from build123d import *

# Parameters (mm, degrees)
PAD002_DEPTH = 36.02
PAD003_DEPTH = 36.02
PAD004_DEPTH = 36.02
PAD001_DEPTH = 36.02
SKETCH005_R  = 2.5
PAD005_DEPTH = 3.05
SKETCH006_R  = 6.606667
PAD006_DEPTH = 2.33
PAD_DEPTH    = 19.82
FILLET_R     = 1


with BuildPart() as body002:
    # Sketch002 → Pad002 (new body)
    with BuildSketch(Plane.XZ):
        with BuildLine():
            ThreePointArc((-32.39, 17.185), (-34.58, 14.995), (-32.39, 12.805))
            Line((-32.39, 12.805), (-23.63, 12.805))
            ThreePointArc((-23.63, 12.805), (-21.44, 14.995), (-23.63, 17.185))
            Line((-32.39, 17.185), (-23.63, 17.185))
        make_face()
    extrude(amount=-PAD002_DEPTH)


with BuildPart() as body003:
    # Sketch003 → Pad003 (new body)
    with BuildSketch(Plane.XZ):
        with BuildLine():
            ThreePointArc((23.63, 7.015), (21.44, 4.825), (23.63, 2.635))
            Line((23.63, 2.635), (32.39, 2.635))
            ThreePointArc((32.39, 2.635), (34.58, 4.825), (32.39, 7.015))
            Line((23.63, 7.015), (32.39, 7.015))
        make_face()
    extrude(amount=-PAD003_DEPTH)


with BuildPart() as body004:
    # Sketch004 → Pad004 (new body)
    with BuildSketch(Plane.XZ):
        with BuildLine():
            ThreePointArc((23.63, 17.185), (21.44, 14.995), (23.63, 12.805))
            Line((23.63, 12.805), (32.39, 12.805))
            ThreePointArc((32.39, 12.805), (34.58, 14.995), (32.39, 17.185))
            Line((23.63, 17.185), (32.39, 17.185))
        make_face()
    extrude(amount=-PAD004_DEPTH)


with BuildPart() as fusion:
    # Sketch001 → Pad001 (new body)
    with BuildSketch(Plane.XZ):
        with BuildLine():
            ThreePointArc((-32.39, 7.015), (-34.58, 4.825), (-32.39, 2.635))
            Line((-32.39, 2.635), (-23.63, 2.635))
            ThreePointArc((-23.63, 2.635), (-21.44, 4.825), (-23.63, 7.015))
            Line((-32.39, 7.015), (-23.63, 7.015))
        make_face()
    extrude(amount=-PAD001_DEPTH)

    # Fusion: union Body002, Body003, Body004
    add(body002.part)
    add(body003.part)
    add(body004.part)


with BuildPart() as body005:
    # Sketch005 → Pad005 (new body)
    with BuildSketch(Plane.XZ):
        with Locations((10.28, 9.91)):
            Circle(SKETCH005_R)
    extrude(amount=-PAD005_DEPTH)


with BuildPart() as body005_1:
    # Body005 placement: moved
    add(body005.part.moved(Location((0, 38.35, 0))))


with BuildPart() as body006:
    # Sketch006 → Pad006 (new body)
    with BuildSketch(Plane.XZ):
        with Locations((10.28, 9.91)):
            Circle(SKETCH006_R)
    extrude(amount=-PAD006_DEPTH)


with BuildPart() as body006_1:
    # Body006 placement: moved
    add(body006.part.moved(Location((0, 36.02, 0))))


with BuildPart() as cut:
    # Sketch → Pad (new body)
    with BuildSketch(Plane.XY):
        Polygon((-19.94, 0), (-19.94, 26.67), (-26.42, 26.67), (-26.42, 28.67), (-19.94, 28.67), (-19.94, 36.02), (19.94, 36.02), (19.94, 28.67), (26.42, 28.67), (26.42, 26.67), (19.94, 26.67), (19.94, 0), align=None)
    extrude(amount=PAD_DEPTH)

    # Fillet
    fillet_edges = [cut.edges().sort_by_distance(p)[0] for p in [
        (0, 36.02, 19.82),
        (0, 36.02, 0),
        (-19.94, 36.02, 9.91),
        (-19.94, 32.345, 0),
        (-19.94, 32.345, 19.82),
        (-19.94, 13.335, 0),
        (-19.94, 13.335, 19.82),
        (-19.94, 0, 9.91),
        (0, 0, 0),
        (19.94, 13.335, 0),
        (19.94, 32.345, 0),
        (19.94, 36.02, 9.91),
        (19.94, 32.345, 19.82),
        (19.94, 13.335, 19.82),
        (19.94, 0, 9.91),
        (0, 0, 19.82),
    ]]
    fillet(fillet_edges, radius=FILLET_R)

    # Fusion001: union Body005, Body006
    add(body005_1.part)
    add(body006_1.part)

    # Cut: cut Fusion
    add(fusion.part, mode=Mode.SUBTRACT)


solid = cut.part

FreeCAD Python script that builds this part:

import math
import FreeCAD as App
import Part
import Sketcher
from FreeCAD import Vector


def edges_at(feature, points):
    """Names of the edges that pass closest to the given points."""
    edges = feature.Shape.Edges
    near = lambda p: min(range(len(edges)), key=lambda i: edges[i].distToShape(Part.Vertex(*p))[0])
    return sorted({f"Edge{near(p) + 1}" for p in points})

doc = App.newDocument("Part")
body = doc.addObject("PartDesign::Body", "Body")

# Sketch on XZ plane
sketch1 = body.newObject("Sketcher::SketchObject", "Sketch")
sketch1.AttachmentSupport = (doc.getObject("XZ_Plane"), [""])
sketch1.MapMode = "FlatFace"
sketch1.addGeometry(Part.ArcOfCircle(Part.Circle(Vector(-32.4, 15, 0), Vector(0, 0, 1), 2.2), math.radians(90), math.radians(270)), False)
sketch1.addGeometry(Part.LineSegment(Vector(-32.4, 12.8, 0), Vector(-23.6, 12.8, 0)), False)
sketch1.addGeometry(Part.ArcOfCircle(Part.Circle(Vector(-23.6, 15, 0), Vector(0, 0, 1), 2.2), math.radians(-90), math.radians(90)), False)
sketch1.addGeometry(Part.LineSegment(Vector(-23.6, 17.2, 0), Vector(-32.4, 17.2, 0)), False)
sketch1.addConstraint(Sketcher.Constraint("Tangent", 0, 2, 1, 1))
sketch1.addConstraint(Sketcher.Constraint("Tangent", 1, 2, 2, 1))
sketch1.addConstraint(Sketcher.Constraint("Tangent", 2, 2, 3, 1))
sketch1.addConstraint(Sketcher.Constraint("Tangent", 3, 2, 0, 1))
sketch1.addConstraint(Sketcher.Constraint("Horizontal", 1))
sketch1.addConstraint(Sketcher.Constraint("Horizontal", 3))
sketch1.addConstraint(Sketcher.Constraint("Radius", 0, 2.19))
sketch1.addConstraint(Sketcher.Constraint("DistanceX", 1, 1, 1, 2, 8.76))
sketch1.addConstraint(Sketcher.Constraint("DistanceX", 0, 3, -1, 1, 32.39))
sketch1.addConstraint(Sketcher.Constraint("DistanceY", -1, 1, 0, 3, 14.995))
pad1 = body.newObject("PartDesign::Pad", "Pad")
pad1.Profile = sketch1
pad1.Length = 36.02
pad1.Reversed = True
body2 = doc.addObject("PartDesign::Body", "Body001")

# Sketch on XZ plane
sketch2 = body2.newObject("Sketcher::SketchObject", "Sketch001")
sketch2.AttachmentSupport = (doc.getObject("XZ_Plane001"), [""])
sketch2.MapMode = "FlatFace"
sketch2.addGeometry(Part.ArcOfCircle(Part.Circle(Vector(23.6, 4.8, 0), Vector(0, 0, 1), 2.2), math.radians(90), math.radians(270)), False)
sketch2.addGeometry(Part.LineSegment(Vector(23.6, 2.6, 0), Vector(32.4, 2.6, 0)), False)
sketch2.addGeometry(Part.ArcOfCircle(Part.Circle(Vector(32.4, 4.8, 0), Vector(0, 0, 1), 2.2), math.radians(-90), math.radians(90)), False)
sketch2.addGeometry(Part.LineSegment(Vector(32.4, 7, 0), Vector(23.6, 7, 0)), False)
sketch2.addConstraint(Sketcher.Constraint("Tangent", 0, 2, 1, 1))
sketch2.addConstraint(Sketcher.Constraint("Tangent", 1, 2, 2, 1))
sketch2.addConstraint(Sketcher.Constraint("Tangent", 2, 2, 3, 1))
sketch2.addConstraint(Sketcher.Constraint("Tangent", 3, 2, 0, 1))
sketch2.addConstraint(Sketcher.Constraint("Horizontal", 1))
sketch2.addConstraint(Sketcher.Constraint("Horizontal", 3))
sketch2.addConstraint(Sketcher.Constraint("Radius", 0, 2.19))
sketch2.addConstraint(Sketcher.Constraint("DistanceX", 1, 1, 1, 2, 8.76))
sketch2.addConstraint(Sketcher.Constraint("DistanceX", -1, 1, 0, 3, 23.63))
sketch2.addConstraint(Sketcher.Constraint("DistanceY", -1, 1, 0, 3, 4.825))
pad2 = body2.newObject("PartDesign::Pad", "Pad001")
pad2.Profile = sketch2
pad2.Length = 36.02
pad2.Reversed = True
body3 = doc.addObject("PartDesign::Body", "Body002")

# Sketch on XZ plane
sketch3 = body3.newObject("Sketcher::SketchObject", "Sketch002")
sketch3.AttachmentSupport = (doc.getObject("XZ_Plane002"), [""])
sketch3.MapMode = "FlatFace"
sketch3.addGeometry(Part.ArcOfCircle(Part.Circle(Vector(23.6, 15, 0), Vector(0, 0, 1), 2.2), math.radians(90), math.radians(270)), False)
sketch3.addGeometry(Part.LineSegment(Vector(23.6, 12.8, 0), Vector(32.4, 12.8, 0)), False)
sketch3.addGeometry(Part.ArcOfCircle(Part.Circle(Vector(32.4, 15, 0), Vector(0, 0, 1), 2.2), math.radians(-90), math.radians(90)), False)
sketch3.addGeometry(Part.LineSegment(Vector(32.4, 17.2, 0), Vector(23.6, 17.2, 0)), False)
sketch3.addConstraint(Sketcher.Constraint("Tangent", 0, 2, 1, 1))
sketch3.addConstraint(Sketcher.Constraint("Tangent", 1, 2, 2, 1))
sketch3.addConstraint(Sketcher.Constraint("Tangent", 2, 2, 3, 1))
sketch3.addConstraint(Sketcher.Constraint("Tangent", 3, 2, 0, 1))
sketch3.addConstraint(Sketcher.Constraint("Horizontal", 1))
sketch3.addConstraint(Sketcher.Constraint("Horizontal", 3))
sketch3.addConstraint(Sketcher.Constraint("Radius", 0, 2.19))
sketch3.addConstraint(Sketcher.Constraint("DistanceX", 1, 1, 1, 2, 8.76))
sketch3.addConstraint(Sketcher.Constraint("DistanceX", -1, 1, 0, 3, 23.63))
sketch3.addConstraint(Sketcher.Constraint("DistanceY", -1, 1, 0, 3, 14.995))
pad3 = body3.newObject("PartDesign::Pad", "Pad002")
pad3.Profile = sketch3
pad3.Length = 36.02
pad3.Reversed = True
body4 = doc.addObject("PartDesign::Body", "Body003")
body4.AllowCompound = True

# Sketch on XZ plane
sketch4 = body4.newObject("Sketcher::SketchObject", "Sketch003")
sketch4.AttachmentSupport = (doc.getObject("XZ_Plane003"), [""])
sketch4.MapMode = "FlatFace"
sketch4.addGeometry(Part.ArcOfCircle(Part.Circle(Vector(-32.4, 4.8, 0), Vector(0, 0, 1), 2.2), math.radians(90), math.radians(270)), False)
sketch4.addGeometry(Part.LineSegment(Vector(-32.4, 2.6, 0), Vector(-23.6, 2.6, 0)), False)
sketch4.addGeometry(Part.ArcOfCircle(Part.Circle(Vector(-23.6, 4.8, 0), Vector(0, 0, 1), 2.2), math.radians(-90), math.radians(90)), False)
sketch4.addGeometry(Part.LineSegment(Vector(-23.6, 7, 0), Vector(-32.4, 7, 0)), False)
sketch4.addConstraint(Sketcher.Constraint("Tangent", 0, 2, 1, 1))
sketch4.addConstraint(Sketcher.Constraint("Tangent", 1, 2, 2, 1))
sketch4.addConstraint(Sketcher.Constraint("Tangent", 2, 2, 3, 1))
sketch4.addConstraint(Sketcher.Constraint("Tangent", 3, 2, 0, 1))
sketch4.addConstraint(Sketcher.Constraint("Horizontal", 1))
sketch4.addConstraint(Sketcher.Constraint("Horizontal", 3))
sketch4.addConstraint(Sketcher.Constraint("Radius", 0, 2.19))
sketch4.addConstraint(Sketcher.Constraint("DistanceX", 1, 1, 1, 2, 8.76))
sketch4.addConstraint(Sketcher.Constraint("DistanceX", 0, 3, -1, 1, 32.39))
sketch4.addConstraint(Sketcher.Constraint("DistanceY", -1, 1, 0, 3, 4.825))
pad4 = body4.newObject("PartDesign::Pad", "Pad003")
pad4.Profile = sketch4
pad4.Length = 36.02
pad4.Reversed = True
doc.recompute()

boolean = body4.newObject("PartDesign::Boolean", "Boolean")
boolean.Type = "Fuse"
boolean.addObjects([body])
doc.recompute()

boolean2 = body4.newObject("PartDesign::Boolean", "Boolean001")
boolean2.Type = "Fuse"
boolean2.addObjects([body2])
doc.recompute()

boolean3 = body4.newObject("PartDesign::Boolean", "Boolean002")
boolean3.Type = "Fuse"
boolean3.addObjects([body3])
body5 = doc.addObject("PartDesign::Body", "Body004")

# Sketch on XZ plane
sketch5 = body5.newObject("Sketcher::SketchObject", "Sketch004")
sketch5.AttachmentSupport = (doc.getObject("XZ_Plane004"), [""])
sketch5.MapMode = "FlatFace"
sketch5.addGeometry(Part.Circle(Vector(10.3, 9.9, 0), Vector(0, 0, 1), 2.5), False)
sketch5.addConstraint(Sketcher.Constraint("Diameter", 0, 5.0))
sketch5.addConstraint(Sketcher.Constraint("DistanceX", -1, 1, 0, 3, 10.28))
sketch5.addConstraint(Sketcher.Constraint("DistanceY", -1, 1, 0, 3, 9.91))
pad5 = body5.newObject("PartDesign::Pad", "Pad004")
pad5.Profile = sketch5
pad5.Length = 3.05
pad5.Reversed = True
body6 = doc.addObject("PartDesign::Body", "Body005")
doc.recompute()

body5.Placement = App.Placement(Vector(0, 38.35, 0), App.Rotation(Vector(0, 0, 1), 0))
boolean4 = body6.newObject("PartDesign::Boolean", "Boolean003")
boolean4.Type = "Fuse"
boolean4.addObjects([body5])
body7 = doc.addObject("PartDesign::Body", "Body006")

# Sketch on XZ plane
sketch6 = body7.newObject("Sketcher::SketchObject", "Sketch005")
sketch6.AttachmentSupport = (doc.getObject("XZ_Plane006"), [""])
sketch6.MapMode = "FlatFace"
sketch6.addGeometry(Part.Circle(Vector(10, 10, 0), Vector(0, 0, 1), 7), False)
sketch6.addConstraint(Sketcher.Constraint("DistanceX", -1, 1, 0, 3, 10.28))
sketch6.addConstraint(Sketcher.Constraint("DistanceY", -1, 1, 0, 3, 9.91))
sketch6.addConstraint(Sketcher.Constraint("Diameter", 0, 13.213334))
pad6 = body7.newObject("PartDesign::Pad", "Pad005")
pad6.Profile = sketch6
pad6.Length = 2.33
pad6.Reversed = True
body8 = doc.addObject("PartDesign::Body", "Body007")
doc.recompute()

body7.Placement = App.Placement(Vector(0, 36.02, 0), App.Rotation(Vector(0, 0, 1), 0))
boolean5 = body8.newObject("PartDesign::Boolean", "Boolean004")
boolean5.Type = "Fuse"
boolean5.addObjects([body7])
body9 = doc.addObject("PartDesign::Body", "Body008")
body9.AllowCompound = True

# Sketch on XY plane
sketch7 = body9.newObject("Sketcher::SketchObject", "Sketch006")
sketch7.AttachmentSupport = (doc.getObject("XY_Plane008"), [""])
sketch7.MapMode = "FlatFace"
sketch7.addGeometry(Part.LineSegment(Vector(-19.9, 26.7, 0), Vector(-19.9, 0, 0)), False)
sketch7.addGeometry(Part.LineSegment(Vector(-19.9, 0, 0), Vector(19.9, 0, 0)), False)
sketch7.addGeometry(Part.LineSegment(Vector(19.9, 0, 0), Vector(19.9, 26.7, 0)), False)
sketch7.addGeometry(Part.LineSegment(Vector(19.9, 26.7, 0), Vector(26.4, 26.7, 0)), False)
sketch7.addGeometry(Part.LineSegment(Vector(26.4, 26.7, 0), Vector(26.4, 28.7, 0)), False)
sketch7.addGeometry(Part.LineSegment(Vector(26.4, 28.7, 0), Vector(19.9, 28.7, 0)), False)
sketch7.addGeometry(Part.LineSegment(Vector(19.9, 28.7, 0), Vector(19.9, 36, 0)), False)
sketch7.addGeometry(Part.LineSegment(Vector(19.9, 36, 0), Vector(-19.9, 36, 0)), False)
sketch7.addGeometry(Part.LineSegment(Vector(-19.9, 36, 0), Vector(-19.9, 28.7, 0)), False)
sketch7.addGeometry(Part.LineSegment(Vector(-19.9, 28.7, 0), Vector(-26.4, 28.7, 0)), False)
sketch7.addGeometry(Part.LineSegment(Vector(-26.4, 28.7, 0), Vector(-26.4, 26.7, 0)), False)
sketch7.addGeometry(Part.LineSegment(Vector(-26.4, 26.7, 0), Vector(-19.9, 26.7, 0)), False)
sketch7.addConstraint(Sketcher.Constraint("Coincident", 0, 2, 1, 1))
sketch7.addConstraint(Sketcher.Constraint("Coincident", 1, 2, 2, 1))
sketch7.addConstraint(Sketcher.Constraint("Coincident", 2, 2, 3, 1))
sketch7.addConstraint(Sketcher.Constraint("Coincident", 3, 2, 4, 1))
sketch7.addConstraint(Sketcher.Constraint("Coincident", 4, 2, 5, 1))
sketch7.addConstraint(Sketcher.Constraint("Coincident", 5, 2, 6, 1))
sketch7.addConstraint(Sketcher.Constraint("Coincident", 6, 2, 7, 1))
sketch7.addConstraint(Sketcher.Constraint("Coincident", 7, 2, 8, 1))
sketch7.addConstraint(Sketcher.Constraint("Coincident", 8, 2, 9, 1))
sketch7.addConstraint(Sketcher.Constraint("Coincident", 9, 2, 10, 1))
sketch7.addConstraint(Sketcher.Constraint("Coincident", 10, 2, 11, 1))
sketch7.addConstraint(Sketcher.Constraint("Coincident", 11, 2, 0, 1))
sketch7.addConstraint(Sketcher.Constraint("Vertical", 0))
sketch7.addConstraint(Sketcher.Constraint("Horizontal", 1))
sketch7.addConstraint(Sketcher.Constraint("Vertical", 2))
sketch7.addConstraint(Sketcher.Constraint("Horizontal", 3))
sketch7.addConstraint(Sketcher.Constraint("Vertical", 4))
sketch7.addConstraint(Sketcher.Constraint("Horizontal", 5))
sketch7.addConstraint(Sketcher.Constraint("Vertical", 6))
sketch7.addConstraint(Sketcher.Constraint("Horizontal", 7))
sketch7.addConstraint(Sketcher.Constraint("Vertical", 8))
sketch7.addConstraint(Sketcher.Constraint("Horizontal", 9))
sketch7.addConstraint(Sketcher.Constraint("Vertical", 10))
sketch7.addConstraint(Sketcher.Constraint("Horizontal", 11))
sketch7.addConstraint(Sketcher.Constraint("Symmetric", 0, 2, 1, 2, -1, 1))
sketch7.addConstraint(Sketcher.Constraint("Symmetric", 5, 2, 8, 2, -2))
sketch7.addConstraint(Sketcher.Constraint("Symmetric", 3, 2, 10, 2, -2))
sketch7.addConstraint(Sketcher.Constraint("Vertical", 2, 2, 5, 2))
sketch7.addConstraint(Sketcher.Constraint("DistanceY", 4, 1, 4, 2, 2.0))
sketch7.addConstraint(Sketcher.Constraint("DistanceX", 1, 1, 1, 2, 39.88))
sketch7.addConstraint(Sketcher.Constraint("DistanceX", 3, 1, 3, 2, 6.48))
sketch7.addConstraint(Sketcher.Constraint("DistanceY", 0, 2, 0, 1, 26.67))
sketch7.addConstraint(Sketcher.Constraint("DistanceY", 6, 1, 6, 2, 7.35))
pad7 = body9.newObject("PartDesign::Pad", "Pad006")
pad7.Profile = sketch7
pad7.Length = 19.82
doc.recompute()

fillet = body9.newObject("PartDesign::Fillet", "Fillet")
fillet.Base = (pad7, edges_at(pad7, [
    (0, 36.02, 19.82),
    (0, 36.02, 0),
    (-19.94, 36.02, 9.91),
    (-19.94, 32.345, 0),
    (-19.94, 32.345, 19.82),
    (-19.94, 13.335, 0),
    (-19.94, 13.335, 19.82),
    (-19.94, 0, 9.91),
    (0, 0, 0),
    (19.94, 13.335, 0),
    (19.94, 32.345, 0),
    (19.94, 36.02, 9.91),
    (19.94, 32.345, 19.82),
    (19.94, 13.335, 19.82),
    (19.94, 0, 9.91),
    (0, 0, 19.82),
]))
fillet.Radius = 1
doc.recompute()

boolean6 = body9.newObject("PartDesign::Boolean", "Boolean005")
boolean6.Type = "Fuse"
boolean6.addObjects([body6])
doc.recompute()

boolean7 = body9.newObject("PartDesign::Boolean", "Boolean006")
boolean7.Type = "Fuse"
boolean7.addObjects([body8])
doc.recompute()

boolean8 = body9.newObject("PartDesign::Boolean", "Boolean007")
boolean8.Type = "Cut"
boolean8.addObjects([body4])

doc.recompute()
